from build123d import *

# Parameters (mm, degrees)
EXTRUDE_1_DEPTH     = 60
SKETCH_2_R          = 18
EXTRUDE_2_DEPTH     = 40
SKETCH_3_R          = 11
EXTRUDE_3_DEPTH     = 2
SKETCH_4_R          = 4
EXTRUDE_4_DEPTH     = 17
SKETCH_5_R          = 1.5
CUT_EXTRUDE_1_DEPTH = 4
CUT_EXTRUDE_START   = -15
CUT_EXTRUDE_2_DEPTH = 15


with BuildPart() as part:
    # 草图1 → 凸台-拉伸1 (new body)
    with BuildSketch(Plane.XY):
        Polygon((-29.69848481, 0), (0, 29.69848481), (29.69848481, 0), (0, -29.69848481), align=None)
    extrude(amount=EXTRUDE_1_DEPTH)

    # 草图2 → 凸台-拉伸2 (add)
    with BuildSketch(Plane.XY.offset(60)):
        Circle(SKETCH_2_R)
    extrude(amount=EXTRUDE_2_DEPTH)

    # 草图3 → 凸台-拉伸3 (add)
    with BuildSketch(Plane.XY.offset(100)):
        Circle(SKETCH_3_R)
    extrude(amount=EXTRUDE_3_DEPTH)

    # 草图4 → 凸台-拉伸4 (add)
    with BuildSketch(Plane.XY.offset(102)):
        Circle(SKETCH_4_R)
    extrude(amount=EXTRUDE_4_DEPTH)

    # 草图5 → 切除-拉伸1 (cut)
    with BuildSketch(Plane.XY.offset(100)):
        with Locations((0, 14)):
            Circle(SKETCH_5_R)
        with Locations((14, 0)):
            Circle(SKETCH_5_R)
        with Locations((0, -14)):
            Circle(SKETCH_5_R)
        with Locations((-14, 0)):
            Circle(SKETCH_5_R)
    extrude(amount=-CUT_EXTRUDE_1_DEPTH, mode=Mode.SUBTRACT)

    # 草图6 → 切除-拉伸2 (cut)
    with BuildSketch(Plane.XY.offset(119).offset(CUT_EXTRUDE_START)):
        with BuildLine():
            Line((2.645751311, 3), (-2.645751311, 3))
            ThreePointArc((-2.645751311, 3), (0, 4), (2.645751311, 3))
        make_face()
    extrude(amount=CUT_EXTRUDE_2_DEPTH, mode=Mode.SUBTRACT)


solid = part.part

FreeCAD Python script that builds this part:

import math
import FreeCAD as App
import Part
import Sketcher

V = App.Vector
Q = App.Units.Quantity


def add_polygon(sketch, points):
    """Adds a closed chain of lines whose ends are joined by coincident constraints."""
    first, n = sketch.GeometryCount, len(points)
    for a, b in zip(points, points[1:] + points[:1]):
        sketch.addGeometry(Part.LineSegment(App.Vector(*a, 0), App.Vector(*b, 0)), False)
    for i in range(n):
        sketch.addConstraint(Sketcher.Constraint("Coincident", first + i, 2, first + (i + 1) % n, 1))

doc = App.newDocument("Part")
body = doc.addObject("PartDesign::Body", "Body")

sketch1 = body.newObject("Sketcher::SketchObject", "Sketch")
sketch1.AttachmentSupport = (doc.getObject("XY_Plane"), [""])
sketch1.MapMode = "FlatFace"
add_polygon(sketch1, [(0, 30), (-30, 0), (0, -30), (30, 0)])
sketch1.addConstraint(Sketcher.Constraint("Symmetric", 0, 2, 2, 2, -1, 1))
sketch1.addConstraint(Sketcher.Constraint("Symmetric", 1, 2, 3, 2, -1, 1))
sketch1.addConstraint(Sketcher.Constraint("PointOnObject", 0, 2, -1))
sketch1.addConstraint(Sketcher.Constraint("PointOnObject", 1, 2, -2))
sketch1.addConstraint(Sketcher.Constraint("Perpendicular", 0, 1))
sketch1.addConstraint(Sketcher.Constraint("Distance", 0, Q("42 mm")))
pad1 = body.newObject("PartDesign::Pad", "Pad")
pad1.Profile = sketch1
pad1.Length = 60

sketch2 = body.newObject("Sketcher::SketchObject", "Sketch001")
sketch2.AttachmentSupport = (doc.getObject("XY_Plane"), [""])
sketch2.MapMode = "FlatFace"
sketch2.AttachmentOffset = App.Placement(V(0, 0, 60), App.Rotation())
sketch2.addGeometry(Part.Circle(V(0, 0, 0), V(0, 0, 1), 18), False)
sketch2.addConstraint(Sketcher.Constraint("Coincident", 0, 3, -1, 1))
sketch2.addConstraint(Sketcher.Constraint("Diameter", 0, Q("36 mm")))
pad2 = body.newObject("PartDesign::Pad", "Pad001")
pad2.Profile = sketch2
pad2.Length = 40

sketch3 = body.newObject("Sketcher::SketchObject", "Sketch002")
sketch3.AttachmentSupport = (doc.getObject("XY_Plane"), [""])
sketch3.MapMode = "FlatFace"
sketch3.AttachmentOffset = App.Placement(V(0, 0, 100), App.Rotation())
sketch3.addGeometry(Part.Circle(V(0, 0, 0), V(0, 0, 1), 11), False)
sketch3.addConstraint(Sketcher.Constraint("Coincident", 0, 3, -1, 1))
sketch3.addConstraint(Sketcher.Constraint("Diameter", 0, Q("22 mm")))
pad3 = body.newObject("PartDesign::Pad", "Pad002")
pad3.Profile = sketch3
pad3.Length = 2

sketch4 = body.newObject("Sketcher::SketchObject", "Sketch003")
sketch4.AttachmentSupport = (doc.getObject("XY_Plane"), [""])
sketch4.MapMode = "FlatFace"
sketch4.AttachmentOffset = App.Placement(V(0, 0, 102), App.Rotation())
sketch4.addGeometry(Part.Circle(V(0, 0, 0), V(0, 0, 1), 4), False)
sketch4.addConstraint(Sketcher.Constraint("Coincident", 0, 3, -1, 1))
sketch4.addConstraint(Sketcher.Constraint("Diameter", 0, Q("8 mm")))
pad4 = body.newObject("PartDesign::Pad", "Pad003")
pad4.Profile = sketch4
pad4.Length = 17

sketch5 = body.newObject("Sketcher::SketchObject", "Sketch004")
sketch5.AttachmentSupport = (doc.getObject("XY_Plane"), [""])
sketch5.MapMode = "FlatFace"
sketch5.AttachmentOffset = App.Placement(V(0, 0, 100), App.Rotation())
sketch5.addGeometry(Part.Circle(V(0, 14, 0), V(0, 0, 1), 1.5), False)
sketch5.addGeometry(Part.Circle(V(14, 0, 0), V(0, 0, 1), 1.5), False)
sketch5.addGeometry(Part.Circle(V(0, -14, 0), V(0, 0, 1), 1.5), False)
sketch5.addGeometry(Part.Circle(V(-14, 0, 0), V(0, 0, 1), 1.5), False)
sketch5.addConstraint(Sketcher.Constraint("Equal", 0, 1))
sketch5.addConstraint(Sketcher.Constraint("Equal", 1, 2))
sketch5.addConstraint(Sketcher.Constraint("Equal", 2, 3))
sketch5.addConstraint(Sketcher.Constraint("Symmetric", 0, 3, 2, 3, -1, 1))
sketch5.addConstraint(Sketcher.Constraint("Symmetric", 1, 3, 3, 3, -1, 1))
sketch5.addConstraint(Sketcher.Constraint("PointOnObject", 0, 3, -2))
sketch5.addConstraint(Sketcher.Constraint("PointOnObject", 1, 3, -1))
sketch5.addConstraint(Sketcher.Constraint("Diameter", 0, Q("3 mm")))
sketch5.addConstraint(Sketcher.Constraint("DistanceY", -1, 1, 0, 3, Q("14 mm")))
sketch5.addConstraint(Sketcher.Constraint("DistanceX", -1, 1, 1, 3, Q("14 mm")))
pocket1 = body.newObject("PartDesign::Pocket", "Pocket")
pocket1.Profile = sketch5
pocket1.Length = 4

sketch6 = body.newObject("Sketcher::SketchObject", "Sketch005")
sketch6.AttachmentSupport = (doc.getObject("XY_Plane"), [""])
sketch6.MapMode = "FlatFace"
sketch6.AttachmentOffset = App.Placement(V(0, 0, 104), App.Rotation())
sketch6.addGeometry(Part.LineSegment(V(-2.6, 3, 0), V(2.6, 3, 0)), False)
sketch6.addGeometry(Part.ArcOfCircle(Part.Circle(V(0, 0, 0), V(0, 0, 1), 4), math.radians(49), math.radians(131)), False)
sketch6.addConstraint(Sketcher.Constraint("Coincident", 0, 1, 1, 2))
sketch6.addConstraint(Sketcher.Constraint("Coincident", 1, 1, 0, 2))
sketch6.addConstraint(Sketcher.Constraint("Horizontal", 0))
sketch6.addConstraint(Sketcher.Constraint("Coincident", 1, 3, -1, 1))
sketch6.addConstraint(Sketcher.Constraint("Radius", 1, Q("4 mm")))
sketch6.addConstraint(Sketcher.Constraint("DistanceY", -1, 1, 0, 1, Q("3 mm")))
pocket2 = body.newObject("PartDesign::Pocket", "Pocket001")
pocket2.Profile = sketch6
pocket2.Length = 15
pocket2.Reversed = True

doc.recompute()
